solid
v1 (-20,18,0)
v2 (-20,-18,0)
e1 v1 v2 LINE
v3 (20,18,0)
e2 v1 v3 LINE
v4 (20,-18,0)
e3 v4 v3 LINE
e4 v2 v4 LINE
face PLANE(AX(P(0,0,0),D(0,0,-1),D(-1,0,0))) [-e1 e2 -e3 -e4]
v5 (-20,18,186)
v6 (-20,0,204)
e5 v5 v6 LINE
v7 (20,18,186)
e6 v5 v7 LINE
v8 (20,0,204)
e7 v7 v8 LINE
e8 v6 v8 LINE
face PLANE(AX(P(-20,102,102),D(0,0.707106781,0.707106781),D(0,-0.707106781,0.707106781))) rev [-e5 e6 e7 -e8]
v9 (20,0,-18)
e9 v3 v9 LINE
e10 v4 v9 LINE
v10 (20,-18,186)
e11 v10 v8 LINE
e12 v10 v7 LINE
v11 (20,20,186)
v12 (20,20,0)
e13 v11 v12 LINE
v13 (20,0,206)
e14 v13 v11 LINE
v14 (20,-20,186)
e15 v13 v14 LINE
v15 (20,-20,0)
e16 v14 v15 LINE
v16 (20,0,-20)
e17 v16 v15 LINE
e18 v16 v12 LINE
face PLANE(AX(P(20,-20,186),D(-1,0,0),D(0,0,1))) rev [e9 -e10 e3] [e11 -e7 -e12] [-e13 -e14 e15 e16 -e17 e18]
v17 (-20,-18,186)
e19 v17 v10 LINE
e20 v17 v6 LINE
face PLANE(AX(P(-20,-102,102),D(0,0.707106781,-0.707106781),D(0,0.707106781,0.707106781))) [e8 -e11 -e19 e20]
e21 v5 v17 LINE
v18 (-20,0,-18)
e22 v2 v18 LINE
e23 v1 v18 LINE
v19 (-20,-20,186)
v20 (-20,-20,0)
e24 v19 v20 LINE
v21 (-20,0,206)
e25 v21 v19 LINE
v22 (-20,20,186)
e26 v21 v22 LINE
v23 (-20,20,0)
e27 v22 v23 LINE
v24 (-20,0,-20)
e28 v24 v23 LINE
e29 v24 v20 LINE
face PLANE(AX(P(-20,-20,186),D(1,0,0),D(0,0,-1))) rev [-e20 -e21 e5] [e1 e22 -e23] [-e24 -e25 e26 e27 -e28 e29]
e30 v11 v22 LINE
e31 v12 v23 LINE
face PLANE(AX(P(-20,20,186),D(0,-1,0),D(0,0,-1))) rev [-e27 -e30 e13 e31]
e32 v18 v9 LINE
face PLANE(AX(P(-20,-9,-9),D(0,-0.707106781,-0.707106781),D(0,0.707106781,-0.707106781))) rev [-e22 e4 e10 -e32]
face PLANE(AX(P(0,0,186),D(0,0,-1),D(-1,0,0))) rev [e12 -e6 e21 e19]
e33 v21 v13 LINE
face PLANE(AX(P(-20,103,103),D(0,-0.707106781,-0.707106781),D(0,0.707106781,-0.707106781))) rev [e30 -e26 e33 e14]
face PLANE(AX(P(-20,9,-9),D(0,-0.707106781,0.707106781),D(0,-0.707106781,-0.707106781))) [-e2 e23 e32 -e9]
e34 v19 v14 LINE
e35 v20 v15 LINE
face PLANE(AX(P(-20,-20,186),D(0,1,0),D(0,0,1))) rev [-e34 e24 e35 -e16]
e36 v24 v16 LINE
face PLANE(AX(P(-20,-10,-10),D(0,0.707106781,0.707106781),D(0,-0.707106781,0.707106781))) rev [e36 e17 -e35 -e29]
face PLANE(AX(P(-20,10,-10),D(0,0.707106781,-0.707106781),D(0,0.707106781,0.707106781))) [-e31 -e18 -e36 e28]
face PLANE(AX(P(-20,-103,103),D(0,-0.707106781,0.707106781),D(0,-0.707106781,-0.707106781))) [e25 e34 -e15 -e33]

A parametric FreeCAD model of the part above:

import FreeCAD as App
import Part
import Sketcher
from FreeCAD import Vector
Q = App.Units.Quantity

doc = App.newDocument("Part")
body = doc.addObject("PartDesign::Body", "Body")

# Sketch on XY plane
sketch1 = body.newObject("Sketcher::SketchObject", "Sketch")
sketch1.AttachmentSupport = (doc.getObject("XY_Plane"), [""])
sketch1.MapMode = "FlatFace"
sketch1.addGeometry(Part.LineSegment(Vector(-20, 20, 0), Vector(-20, -20, 0)), False)
sketch1.addGeometry(Part.LineSegment(Vector(-20, -20, 0), Vector(20, -20, 0)), False)
sketch1.addGeometry(Part.LineSegment(Vector(20, -20, 0), Vector(20, 20, 0)), False)
sketch1.addGeometry(Part.LineSegment(Vector(20, 20, 0), Vector(-20, 20, 0)), False)
sketch1.addConstraint(Sketcher.Constraint("Coincident", 0, 2, 1, 1))
sketch1.addConstraint(Sketcher.Constraint("Coincident", 1, 2, 2, 1))
sketch1.addConstraint(Sketcher.Constraint("Coincident", 2, 2, 3, 1))
sketch1.addConstraint(Sketcher.Constraint("Coincident", 3, 2, 0, 1))
sketch1.addConstraint(Sketcher.Constraint("Vertical", 0))
sketch1.addConstraint(Sketcher.Constraint("Horizontal", 1))
sketch1.addConstraint(Sketcher.Constraint("Vertical", 2))
sketch1.addConstraint(Sketcher.Constraint("Horizontal", 3))
sketch1.addConstraint(Sketcher.Constraint("Symmetric", 0, 2, 2, 2, -1, 1))
sketch1.addConstraint(Sketcher.Constraint("Equal", 3, 0))
sketch1.addConstraint(Sketcher.Constraint("DistanceX", 1, 1, 1, 2, Q("40 mm")))
pad1 = body.newObject("PartDesign::Pad", "Pad")
pad1.Profile = sketch1
pad1.Length = 186

# Sketch on YZ plane
sketch2 = body.newObject("Sketcher::SketchObject", "Sketch001")
sketch2.AttachmentSupport = (doc.getObject("YZ_Plane"), [""])
sketch2.MapMode = "FlatFace"
sketch2.AttachmentOffset = App.Placement(Vector(0, 0, 20), App.Rotation())
sketch2.addGeometry(Part.LineSegment(Vector(-20, 0, 0), Vector(0, -20, 0)), False)
sketch2.addGeometry(Part.LineSegment(Vector(0, -20, 0), Vector(20, 0, 0)), False)
sketch2.addGeometry(Part.LineSegment(Vector(20, 0, 0), Vector(18, 0, 0)), False)
sketch2.addGeometry(Part.LineSegment(Vector(18, 0, 0), Vector(0, -18, 0)), False)
sketch2.addGeometry(Part.LineSegment(Vector(0, -18, 0), Vector(-18, 0, 0)), False)
sketch2.addGeometry(Part.LineSegment(Vector(-18, 0, 0), Vector(-20, 0, 0)), False)
sketch2.addGeometry(Part.LineSegment(Vector(18, 186, 0), Vector(20, 186, 0)), False)
sketch2.addGeometry(Part.LineSegment(Vector(20, 186, 0), Vector(0, 206, 0)), False)
sketch2.addGeometry(Part.LineSegment(Vector(0, 206, 0), Vector(-20, 186, 0)), False)
sketch2.addGeometry(Part.LineSegment(Vector(-20, 186, 0), Vector(-18, 186, 0)), False)
sketch2.addGeometry(Part.LineSegment(Vector(-18, 186, 0), Vector(0, 204, 0)), False)
sketch2.addGeometry(Part.LineSegment(Vector(0, 204, 0), Vector(18, 186, 0)), False)
sketch2.addConstraint(Sketcher.Constraint("Coincident", 0, 2, 1, 1))
sketch2.addConstraint(Sketcher.Constraint("Coincident", 1, 2, 2, 1))
sketch2.addConstraint(Sketcher.Constraint("Coincident", 2, 2, 3, 1))
sketch2.addConstraint(Sketcher.Constraint("Coincident", 3, 2, 4, 1))
sketch2.addConstraint(Sketcher.Constraint("Coincident", 4, 2, 5, 1))
sketch2.addConstraint(Sketcher.Constraint("Coincident", 5, 2, 0, 1))
sketch2.addConstraint(Sketcher.Constraint("Coincident", 6, 2, 7, 1))
sketch2.addConstraint(Sketcher.Constraint("Coincident", 7, 2, 8, 1))
sketch2.addConstraint(Sketcher.Constraint("Coincident", 8, 2, 9, 1))
sketch2.addConstraint(Sketcher.Constraint("Coincident", 9, 2, 10, 1))
sketch2.addConstraint(Sketcher.Constraint("Coincident", 10, 2, 11, 1))
sketch2.addConstraint(Sketcher.Constraint("Coincident", 11, 2, 6, 1))
sketch2.addConstraint(Sketcher.Constraint("Horizontal", 2))
sketch2.addConstraint(Sketcher.Constraint("Horizontal", 5))
sketch2.addConstraint(Sketcher.Constraint("Horizontal", 6))
sketch2.addConstraint(Sketcher.Constraint("Horizontal", 9))
sketch2.addConstraint(Sketcher.Constraint("Symmetric", 2, 2, 4, 2, -1, 1))
sketch2.addConstraint(Sketcher.Constraint("Symmetric", 1, 2, 5, 2, -2))
sketch2.addConstraint(Sketcher.Constraint("Symmetric", 6, 2, 8, 2, -2))
sketch2.addConstraint(Sketcher.Constraint("PointOnObject", 0, 2, -2))
sketch2.addConstraint(Sketcher.Constraint("PointOnObject", 3, 2, -2))
sketch2.addConstraint(Sketcher.Constraint("PointOnObject", 7, 2, -2))
sketch2.addConstraint(Sketcher.Constraint("PointOnObject", 10, 2, -2))
sketch2.addConstraint(Sketcher.Constraint("Perpendicular", 0, 1))
sketch2.addConstraint(Sketcher.Constraint("Parallel", 1, 3))
sketch2.addConstraint(Sketcher.Constraint("Parallel", 4, 7))
sketch2.addConstraint(Sketcher.Constraint("Parallel", 8, 10))
sketch2.addConstraint(Sketcher.Constraint("Perpendicular", 10, 11))
sketch2.addConstraint(Sketcher.Constraint("Vertical", 1, 2, 6, 2))
sketch2.addConstraint(Sketcher.Constraint("Vertical", 4, 2, 9, 2))
sketch2.addConstraint(Sketcher.Constraint("DistanceX", 2, 2, 2, 1, Q("2 mm")))
sketch2.addConstraint(Sketcher.Constraint("DistanceY", 0, 2, -1, 1, Q("20 mm")))
sketch2.addConstraint(Sketcher.Constraint("DistanceY", -1, 1, 6, 2, Q("186 mm")))
pad2 = body.newObject("PartDesign::Pad", "Pad001")
pad2.Profile = sketch2
pad2.Length = 40
pad2.Reversed = True

doc.recompute()
